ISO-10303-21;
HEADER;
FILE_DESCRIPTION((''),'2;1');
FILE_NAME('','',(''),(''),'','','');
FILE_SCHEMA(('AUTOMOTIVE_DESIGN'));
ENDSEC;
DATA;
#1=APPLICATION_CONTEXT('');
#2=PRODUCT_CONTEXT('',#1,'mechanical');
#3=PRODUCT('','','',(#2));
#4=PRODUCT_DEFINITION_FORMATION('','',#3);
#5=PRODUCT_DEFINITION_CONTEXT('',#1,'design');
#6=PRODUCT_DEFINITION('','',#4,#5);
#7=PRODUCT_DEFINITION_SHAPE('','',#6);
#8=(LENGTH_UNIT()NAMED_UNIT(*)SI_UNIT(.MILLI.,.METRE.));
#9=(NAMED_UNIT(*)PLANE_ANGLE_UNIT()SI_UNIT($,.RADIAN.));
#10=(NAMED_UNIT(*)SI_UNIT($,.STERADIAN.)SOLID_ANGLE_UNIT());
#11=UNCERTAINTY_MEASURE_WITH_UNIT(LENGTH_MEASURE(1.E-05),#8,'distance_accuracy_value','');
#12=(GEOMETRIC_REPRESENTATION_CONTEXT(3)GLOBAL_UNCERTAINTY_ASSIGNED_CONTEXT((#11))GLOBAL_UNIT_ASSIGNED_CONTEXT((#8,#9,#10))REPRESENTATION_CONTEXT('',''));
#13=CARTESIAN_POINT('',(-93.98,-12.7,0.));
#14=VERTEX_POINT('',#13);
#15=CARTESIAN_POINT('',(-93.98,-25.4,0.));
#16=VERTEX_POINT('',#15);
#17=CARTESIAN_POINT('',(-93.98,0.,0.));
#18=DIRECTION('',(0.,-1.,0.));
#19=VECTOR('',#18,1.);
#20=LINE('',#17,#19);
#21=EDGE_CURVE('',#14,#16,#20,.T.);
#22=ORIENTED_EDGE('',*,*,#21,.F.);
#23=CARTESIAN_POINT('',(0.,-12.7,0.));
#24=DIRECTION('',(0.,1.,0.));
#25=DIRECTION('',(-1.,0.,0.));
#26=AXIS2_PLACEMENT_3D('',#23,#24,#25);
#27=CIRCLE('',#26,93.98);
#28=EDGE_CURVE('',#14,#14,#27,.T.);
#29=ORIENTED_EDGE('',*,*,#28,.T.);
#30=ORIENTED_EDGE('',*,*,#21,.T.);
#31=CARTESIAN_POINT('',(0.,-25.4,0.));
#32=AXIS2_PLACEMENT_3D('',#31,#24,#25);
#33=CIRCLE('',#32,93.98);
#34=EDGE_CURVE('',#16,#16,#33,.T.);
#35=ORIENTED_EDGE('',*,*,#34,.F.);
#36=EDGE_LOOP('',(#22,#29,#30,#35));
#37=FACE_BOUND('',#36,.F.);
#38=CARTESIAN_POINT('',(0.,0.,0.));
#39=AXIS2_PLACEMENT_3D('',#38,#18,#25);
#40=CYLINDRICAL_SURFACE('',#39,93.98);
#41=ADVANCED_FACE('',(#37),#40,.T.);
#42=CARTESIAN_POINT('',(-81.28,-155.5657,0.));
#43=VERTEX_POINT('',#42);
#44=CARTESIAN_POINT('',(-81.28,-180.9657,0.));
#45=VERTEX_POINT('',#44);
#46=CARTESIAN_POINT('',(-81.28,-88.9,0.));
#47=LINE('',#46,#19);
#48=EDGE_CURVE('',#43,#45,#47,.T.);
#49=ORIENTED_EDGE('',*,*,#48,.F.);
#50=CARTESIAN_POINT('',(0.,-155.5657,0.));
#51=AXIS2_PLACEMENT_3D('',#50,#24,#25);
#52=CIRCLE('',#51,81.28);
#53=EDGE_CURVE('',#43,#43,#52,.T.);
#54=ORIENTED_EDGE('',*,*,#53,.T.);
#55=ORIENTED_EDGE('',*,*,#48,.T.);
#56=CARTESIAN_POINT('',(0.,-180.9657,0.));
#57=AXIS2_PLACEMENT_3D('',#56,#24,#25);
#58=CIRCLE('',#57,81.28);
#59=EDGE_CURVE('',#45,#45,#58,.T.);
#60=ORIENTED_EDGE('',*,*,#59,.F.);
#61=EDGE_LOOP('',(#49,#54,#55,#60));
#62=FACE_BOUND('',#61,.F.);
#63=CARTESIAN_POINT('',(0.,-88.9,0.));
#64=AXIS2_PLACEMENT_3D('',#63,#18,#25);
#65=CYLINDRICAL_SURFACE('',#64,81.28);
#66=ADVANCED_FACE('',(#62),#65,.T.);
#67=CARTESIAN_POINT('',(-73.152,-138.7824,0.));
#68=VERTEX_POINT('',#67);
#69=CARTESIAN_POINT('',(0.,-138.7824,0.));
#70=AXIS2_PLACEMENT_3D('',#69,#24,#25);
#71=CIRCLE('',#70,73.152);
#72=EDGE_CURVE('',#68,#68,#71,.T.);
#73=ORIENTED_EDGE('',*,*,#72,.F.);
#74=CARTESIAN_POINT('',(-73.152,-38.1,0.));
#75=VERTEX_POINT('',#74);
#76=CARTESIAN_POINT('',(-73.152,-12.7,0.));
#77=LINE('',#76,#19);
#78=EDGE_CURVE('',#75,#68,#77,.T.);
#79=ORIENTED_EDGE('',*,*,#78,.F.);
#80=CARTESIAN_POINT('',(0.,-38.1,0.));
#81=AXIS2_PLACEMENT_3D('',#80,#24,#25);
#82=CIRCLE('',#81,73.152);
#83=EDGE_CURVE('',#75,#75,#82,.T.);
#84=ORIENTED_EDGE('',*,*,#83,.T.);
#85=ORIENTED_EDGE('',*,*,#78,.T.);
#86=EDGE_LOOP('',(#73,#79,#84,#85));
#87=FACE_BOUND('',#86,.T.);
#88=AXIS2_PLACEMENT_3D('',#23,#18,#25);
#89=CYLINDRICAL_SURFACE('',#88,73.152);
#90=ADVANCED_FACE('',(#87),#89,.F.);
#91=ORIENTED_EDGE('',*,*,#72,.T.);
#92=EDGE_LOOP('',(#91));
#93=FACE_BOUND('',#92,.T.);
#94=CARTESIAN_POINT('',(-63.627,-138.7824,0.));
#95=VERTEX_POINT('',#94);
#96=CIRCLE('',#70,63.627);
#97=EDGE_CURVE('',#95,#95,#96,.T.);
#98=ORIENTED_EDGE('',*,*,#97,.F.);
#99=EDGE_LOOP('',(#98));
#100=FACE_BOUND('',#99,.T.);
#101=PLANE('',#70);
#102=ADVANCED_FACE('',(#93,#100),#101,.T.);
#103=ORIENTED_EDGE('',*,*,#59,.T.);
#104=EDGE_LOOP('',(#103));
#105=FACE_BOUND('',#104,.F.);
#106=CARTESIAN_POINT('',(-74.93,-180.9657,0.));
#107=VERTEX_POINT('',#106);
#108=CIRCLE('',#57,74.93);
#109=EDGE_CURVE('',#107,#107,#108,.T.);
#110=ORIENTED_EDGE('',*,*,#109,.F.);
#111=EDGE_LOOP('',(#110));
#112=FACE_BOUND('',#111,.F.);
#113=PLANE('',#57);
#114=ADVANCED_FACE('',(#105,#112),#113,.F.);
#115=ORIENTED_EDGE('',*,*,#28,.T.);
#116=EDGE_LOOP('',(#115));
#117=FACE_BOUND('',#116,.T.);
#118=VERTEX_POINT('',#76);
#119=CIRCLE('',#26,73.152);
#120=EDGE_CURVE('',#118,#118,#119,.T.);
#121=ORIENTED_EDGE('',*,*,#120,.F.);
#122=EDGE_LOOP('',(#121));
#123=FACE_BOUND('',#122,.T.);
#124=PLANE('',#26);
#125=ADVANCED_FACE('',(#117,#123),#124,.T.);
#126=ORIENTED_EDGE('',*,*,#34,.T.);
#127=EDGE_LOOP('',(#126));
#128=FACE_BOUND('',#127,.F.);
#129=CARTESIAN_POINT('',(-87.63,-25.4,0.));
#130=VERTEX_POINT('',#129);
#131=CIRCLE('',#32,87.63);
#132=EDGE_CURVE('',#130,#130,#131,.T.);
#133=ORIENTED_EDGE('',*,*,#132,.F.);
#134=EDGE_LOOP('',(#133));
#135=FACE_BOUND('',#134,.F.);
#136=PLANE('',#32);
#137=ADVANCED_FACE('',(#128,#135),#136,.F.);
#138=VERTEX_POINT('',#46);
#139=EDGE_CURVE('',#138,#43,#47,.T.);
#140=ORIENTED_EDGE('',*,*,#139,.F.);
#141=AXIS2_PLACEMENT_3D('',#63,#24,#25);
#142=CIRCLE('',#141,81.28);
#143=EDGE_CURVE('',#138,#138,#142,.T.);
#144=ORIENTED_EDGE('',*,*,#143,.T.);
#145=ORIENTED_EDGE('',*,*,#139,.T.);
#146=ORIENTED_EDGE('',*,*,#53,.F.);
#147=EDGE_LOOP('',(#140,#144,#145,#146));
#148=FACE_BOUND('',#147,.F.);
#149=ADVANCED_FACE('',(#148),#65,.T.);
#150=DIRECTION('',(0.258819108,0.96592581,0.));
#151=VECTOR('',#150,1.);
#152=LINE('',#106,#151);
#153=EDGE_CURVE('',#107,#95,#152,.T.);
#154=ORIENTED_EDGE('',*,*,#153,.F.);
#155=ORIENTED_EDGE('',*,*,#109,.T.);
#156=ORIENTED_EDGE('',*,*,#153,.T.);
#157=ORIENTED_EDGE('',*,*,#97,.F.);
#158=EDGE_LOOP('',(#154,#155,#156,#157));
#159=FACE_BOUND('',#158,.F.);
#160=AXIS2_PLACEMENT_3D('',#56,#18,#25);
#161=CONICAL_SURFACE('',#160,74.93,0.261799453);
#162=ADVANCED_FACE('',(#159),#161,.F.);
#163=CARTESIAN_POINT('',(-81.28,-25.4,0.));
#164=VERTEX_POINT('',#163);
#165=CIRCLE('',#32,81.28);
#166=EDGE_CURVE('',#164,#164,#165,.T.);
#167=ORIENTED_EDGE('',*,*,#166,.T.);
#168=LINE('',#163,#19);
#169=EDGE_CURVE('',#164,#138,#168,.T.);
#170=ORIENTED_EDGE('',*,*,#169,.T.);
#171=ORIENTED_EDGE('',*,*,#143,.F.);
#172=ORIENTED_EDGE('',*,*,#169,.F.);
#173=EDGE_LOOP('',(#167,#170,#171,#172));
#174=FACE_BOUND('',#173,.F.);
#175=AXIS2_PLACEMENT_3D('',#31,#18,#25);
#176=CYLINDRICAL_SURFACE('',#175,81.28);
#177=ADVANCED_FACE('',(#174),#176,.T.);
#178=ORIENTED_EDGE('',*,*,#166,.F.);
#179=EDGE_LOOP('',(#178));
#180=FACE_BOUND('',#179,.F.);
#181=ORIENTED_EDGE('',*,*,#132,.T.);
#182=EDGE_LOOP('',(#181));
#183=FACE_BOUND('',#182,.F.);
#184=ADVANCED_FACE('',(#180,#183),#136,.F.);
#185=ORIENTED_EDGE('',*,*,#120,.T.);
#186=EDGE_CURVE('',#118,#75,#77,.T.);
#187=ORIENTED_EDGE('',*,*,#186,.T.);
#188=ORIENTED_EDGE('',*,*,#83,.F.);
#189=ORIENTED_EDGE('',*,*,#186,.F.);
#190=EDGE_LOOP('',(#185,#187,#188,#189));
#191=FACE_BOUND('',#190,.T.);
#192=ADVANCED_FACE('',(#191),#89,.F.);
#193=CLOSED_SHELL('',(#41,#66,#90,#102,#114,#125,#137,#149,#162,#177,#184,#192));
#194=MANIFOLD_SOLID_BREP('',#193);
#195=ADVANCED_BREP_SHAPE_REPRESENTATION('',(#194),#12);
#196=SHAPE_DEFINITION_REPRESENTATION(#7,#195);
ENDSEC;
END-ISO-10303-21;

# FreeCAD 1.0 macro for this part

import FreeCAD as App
import Part
import Sketcher

V = App.Vector
Q = App.Units.Quantity

doc = App.newDocument("Part")
body = doc.addObject("PartDesign::Body", "Body")

# Sketch on XY plane
sketch1 = body.newObject("Sketcher::SketchObject", "Sketch")
sketch1.AttachmentSupport = (doc.getObject("XY_Plane"), [""])
sketch1.MapMode = "FlatFace"
sketch1.addGeometry([
    Part.LineSegment(V(-73, -13, 0), V(-94, -13, 0)),  # 0
    Part.LineSegment(V(-94, -13, 0), V(-94, -25, 0)),  # 1
    Part.LineSegment(V(-94, -25, 0), V(-81, -25, 0)),  # 2
    Part.LineSegment(V(-81, -25, 0), V(-81, -181, 0)),  # 3
    Part.LineSegment(V(-81, -181, 0), V(-75, -181, 0)),  # 4
    Part.LineSegment(V(-75, -181, 0), V(-64, -139, 0)),  # 5
    Part.LineSegment(V(-64, -139, 0), V(-73, -139, 0)),  # 6
    Part.LineSegment(V(-73, -139, 0), V(-73, -13, 0)),  # 7
], False)
sketch1.addConstraint([
    Sketcher.Constraint("Coincident", 0, 2, 1, 1),
    Sketcher.Constraint("Coincident", 1, 2, 2, 1),
    Sketcher.Constraint("Coincident", 2, 2, 3, 1),
    Sketcher.Constraint("Coincident", 3, 2, 4, 1),
    Sketcher.Constraint("Coincident", 4, 2, 5, 1),
    Sketcher.Constraint("Coincident", 5, 2, 6, 1),
    Sketcher.Constraint("Coincident", 6, 2, 7, 1),
    Sketcher.Constraint("Coincident", 7, 2, 0, 1),
    Sketcher.Constraint("Horizontal", 0),
    Sketcher.Constraint("Vertical", 1),
    Sketcher.Constraint("Horizontal", 2),
    Sketcher.Constraint("Vertical", 3),
    Sketcher.Constraint("Horizontal", 4),
    Sketcher.Constraint("Horizontal", 6),
    Sketcher.Constraint("Vertical", 7),
    Sketcher.Constraint("Equal", 2, 1),
    Sketcher.Constraint("DistanceX", 2, 1, 2, 2, Q("0.5 in")),
    Sketcher.Constraint("DistanceY", 1, 2, -1, 1, Q("1 in")),
    Sketcher.Constraint("DistanceX", 4, 1, 4, 2, Q("0.25 in")),
    Sketcher.Constraint("DistanceX", 0, 2, -1, 1, Q("3.7 in")),
    Sketcher.Constraint("DistanceX", 6, 2, 6, 1, Q("0.375 in")),
    Sketcher.Constraint("Angle", 5, Q("75 deg")),
    Sketcher.Constraint("DistanceX", 0, 2, 0, 1, Q("0.82 in")),
    Sketcher.Constraint("DistanceY", 3, 2, 3, 1, 155.5657),
])
revolution = body.newObject("PartDesign::Revolution", "Revolution")
revolution.Profile = sketch1
revolution.ReferenceAxis = (sketch1, ["V_Axis"])
revolution.Angle = 360

doc.recompute()
